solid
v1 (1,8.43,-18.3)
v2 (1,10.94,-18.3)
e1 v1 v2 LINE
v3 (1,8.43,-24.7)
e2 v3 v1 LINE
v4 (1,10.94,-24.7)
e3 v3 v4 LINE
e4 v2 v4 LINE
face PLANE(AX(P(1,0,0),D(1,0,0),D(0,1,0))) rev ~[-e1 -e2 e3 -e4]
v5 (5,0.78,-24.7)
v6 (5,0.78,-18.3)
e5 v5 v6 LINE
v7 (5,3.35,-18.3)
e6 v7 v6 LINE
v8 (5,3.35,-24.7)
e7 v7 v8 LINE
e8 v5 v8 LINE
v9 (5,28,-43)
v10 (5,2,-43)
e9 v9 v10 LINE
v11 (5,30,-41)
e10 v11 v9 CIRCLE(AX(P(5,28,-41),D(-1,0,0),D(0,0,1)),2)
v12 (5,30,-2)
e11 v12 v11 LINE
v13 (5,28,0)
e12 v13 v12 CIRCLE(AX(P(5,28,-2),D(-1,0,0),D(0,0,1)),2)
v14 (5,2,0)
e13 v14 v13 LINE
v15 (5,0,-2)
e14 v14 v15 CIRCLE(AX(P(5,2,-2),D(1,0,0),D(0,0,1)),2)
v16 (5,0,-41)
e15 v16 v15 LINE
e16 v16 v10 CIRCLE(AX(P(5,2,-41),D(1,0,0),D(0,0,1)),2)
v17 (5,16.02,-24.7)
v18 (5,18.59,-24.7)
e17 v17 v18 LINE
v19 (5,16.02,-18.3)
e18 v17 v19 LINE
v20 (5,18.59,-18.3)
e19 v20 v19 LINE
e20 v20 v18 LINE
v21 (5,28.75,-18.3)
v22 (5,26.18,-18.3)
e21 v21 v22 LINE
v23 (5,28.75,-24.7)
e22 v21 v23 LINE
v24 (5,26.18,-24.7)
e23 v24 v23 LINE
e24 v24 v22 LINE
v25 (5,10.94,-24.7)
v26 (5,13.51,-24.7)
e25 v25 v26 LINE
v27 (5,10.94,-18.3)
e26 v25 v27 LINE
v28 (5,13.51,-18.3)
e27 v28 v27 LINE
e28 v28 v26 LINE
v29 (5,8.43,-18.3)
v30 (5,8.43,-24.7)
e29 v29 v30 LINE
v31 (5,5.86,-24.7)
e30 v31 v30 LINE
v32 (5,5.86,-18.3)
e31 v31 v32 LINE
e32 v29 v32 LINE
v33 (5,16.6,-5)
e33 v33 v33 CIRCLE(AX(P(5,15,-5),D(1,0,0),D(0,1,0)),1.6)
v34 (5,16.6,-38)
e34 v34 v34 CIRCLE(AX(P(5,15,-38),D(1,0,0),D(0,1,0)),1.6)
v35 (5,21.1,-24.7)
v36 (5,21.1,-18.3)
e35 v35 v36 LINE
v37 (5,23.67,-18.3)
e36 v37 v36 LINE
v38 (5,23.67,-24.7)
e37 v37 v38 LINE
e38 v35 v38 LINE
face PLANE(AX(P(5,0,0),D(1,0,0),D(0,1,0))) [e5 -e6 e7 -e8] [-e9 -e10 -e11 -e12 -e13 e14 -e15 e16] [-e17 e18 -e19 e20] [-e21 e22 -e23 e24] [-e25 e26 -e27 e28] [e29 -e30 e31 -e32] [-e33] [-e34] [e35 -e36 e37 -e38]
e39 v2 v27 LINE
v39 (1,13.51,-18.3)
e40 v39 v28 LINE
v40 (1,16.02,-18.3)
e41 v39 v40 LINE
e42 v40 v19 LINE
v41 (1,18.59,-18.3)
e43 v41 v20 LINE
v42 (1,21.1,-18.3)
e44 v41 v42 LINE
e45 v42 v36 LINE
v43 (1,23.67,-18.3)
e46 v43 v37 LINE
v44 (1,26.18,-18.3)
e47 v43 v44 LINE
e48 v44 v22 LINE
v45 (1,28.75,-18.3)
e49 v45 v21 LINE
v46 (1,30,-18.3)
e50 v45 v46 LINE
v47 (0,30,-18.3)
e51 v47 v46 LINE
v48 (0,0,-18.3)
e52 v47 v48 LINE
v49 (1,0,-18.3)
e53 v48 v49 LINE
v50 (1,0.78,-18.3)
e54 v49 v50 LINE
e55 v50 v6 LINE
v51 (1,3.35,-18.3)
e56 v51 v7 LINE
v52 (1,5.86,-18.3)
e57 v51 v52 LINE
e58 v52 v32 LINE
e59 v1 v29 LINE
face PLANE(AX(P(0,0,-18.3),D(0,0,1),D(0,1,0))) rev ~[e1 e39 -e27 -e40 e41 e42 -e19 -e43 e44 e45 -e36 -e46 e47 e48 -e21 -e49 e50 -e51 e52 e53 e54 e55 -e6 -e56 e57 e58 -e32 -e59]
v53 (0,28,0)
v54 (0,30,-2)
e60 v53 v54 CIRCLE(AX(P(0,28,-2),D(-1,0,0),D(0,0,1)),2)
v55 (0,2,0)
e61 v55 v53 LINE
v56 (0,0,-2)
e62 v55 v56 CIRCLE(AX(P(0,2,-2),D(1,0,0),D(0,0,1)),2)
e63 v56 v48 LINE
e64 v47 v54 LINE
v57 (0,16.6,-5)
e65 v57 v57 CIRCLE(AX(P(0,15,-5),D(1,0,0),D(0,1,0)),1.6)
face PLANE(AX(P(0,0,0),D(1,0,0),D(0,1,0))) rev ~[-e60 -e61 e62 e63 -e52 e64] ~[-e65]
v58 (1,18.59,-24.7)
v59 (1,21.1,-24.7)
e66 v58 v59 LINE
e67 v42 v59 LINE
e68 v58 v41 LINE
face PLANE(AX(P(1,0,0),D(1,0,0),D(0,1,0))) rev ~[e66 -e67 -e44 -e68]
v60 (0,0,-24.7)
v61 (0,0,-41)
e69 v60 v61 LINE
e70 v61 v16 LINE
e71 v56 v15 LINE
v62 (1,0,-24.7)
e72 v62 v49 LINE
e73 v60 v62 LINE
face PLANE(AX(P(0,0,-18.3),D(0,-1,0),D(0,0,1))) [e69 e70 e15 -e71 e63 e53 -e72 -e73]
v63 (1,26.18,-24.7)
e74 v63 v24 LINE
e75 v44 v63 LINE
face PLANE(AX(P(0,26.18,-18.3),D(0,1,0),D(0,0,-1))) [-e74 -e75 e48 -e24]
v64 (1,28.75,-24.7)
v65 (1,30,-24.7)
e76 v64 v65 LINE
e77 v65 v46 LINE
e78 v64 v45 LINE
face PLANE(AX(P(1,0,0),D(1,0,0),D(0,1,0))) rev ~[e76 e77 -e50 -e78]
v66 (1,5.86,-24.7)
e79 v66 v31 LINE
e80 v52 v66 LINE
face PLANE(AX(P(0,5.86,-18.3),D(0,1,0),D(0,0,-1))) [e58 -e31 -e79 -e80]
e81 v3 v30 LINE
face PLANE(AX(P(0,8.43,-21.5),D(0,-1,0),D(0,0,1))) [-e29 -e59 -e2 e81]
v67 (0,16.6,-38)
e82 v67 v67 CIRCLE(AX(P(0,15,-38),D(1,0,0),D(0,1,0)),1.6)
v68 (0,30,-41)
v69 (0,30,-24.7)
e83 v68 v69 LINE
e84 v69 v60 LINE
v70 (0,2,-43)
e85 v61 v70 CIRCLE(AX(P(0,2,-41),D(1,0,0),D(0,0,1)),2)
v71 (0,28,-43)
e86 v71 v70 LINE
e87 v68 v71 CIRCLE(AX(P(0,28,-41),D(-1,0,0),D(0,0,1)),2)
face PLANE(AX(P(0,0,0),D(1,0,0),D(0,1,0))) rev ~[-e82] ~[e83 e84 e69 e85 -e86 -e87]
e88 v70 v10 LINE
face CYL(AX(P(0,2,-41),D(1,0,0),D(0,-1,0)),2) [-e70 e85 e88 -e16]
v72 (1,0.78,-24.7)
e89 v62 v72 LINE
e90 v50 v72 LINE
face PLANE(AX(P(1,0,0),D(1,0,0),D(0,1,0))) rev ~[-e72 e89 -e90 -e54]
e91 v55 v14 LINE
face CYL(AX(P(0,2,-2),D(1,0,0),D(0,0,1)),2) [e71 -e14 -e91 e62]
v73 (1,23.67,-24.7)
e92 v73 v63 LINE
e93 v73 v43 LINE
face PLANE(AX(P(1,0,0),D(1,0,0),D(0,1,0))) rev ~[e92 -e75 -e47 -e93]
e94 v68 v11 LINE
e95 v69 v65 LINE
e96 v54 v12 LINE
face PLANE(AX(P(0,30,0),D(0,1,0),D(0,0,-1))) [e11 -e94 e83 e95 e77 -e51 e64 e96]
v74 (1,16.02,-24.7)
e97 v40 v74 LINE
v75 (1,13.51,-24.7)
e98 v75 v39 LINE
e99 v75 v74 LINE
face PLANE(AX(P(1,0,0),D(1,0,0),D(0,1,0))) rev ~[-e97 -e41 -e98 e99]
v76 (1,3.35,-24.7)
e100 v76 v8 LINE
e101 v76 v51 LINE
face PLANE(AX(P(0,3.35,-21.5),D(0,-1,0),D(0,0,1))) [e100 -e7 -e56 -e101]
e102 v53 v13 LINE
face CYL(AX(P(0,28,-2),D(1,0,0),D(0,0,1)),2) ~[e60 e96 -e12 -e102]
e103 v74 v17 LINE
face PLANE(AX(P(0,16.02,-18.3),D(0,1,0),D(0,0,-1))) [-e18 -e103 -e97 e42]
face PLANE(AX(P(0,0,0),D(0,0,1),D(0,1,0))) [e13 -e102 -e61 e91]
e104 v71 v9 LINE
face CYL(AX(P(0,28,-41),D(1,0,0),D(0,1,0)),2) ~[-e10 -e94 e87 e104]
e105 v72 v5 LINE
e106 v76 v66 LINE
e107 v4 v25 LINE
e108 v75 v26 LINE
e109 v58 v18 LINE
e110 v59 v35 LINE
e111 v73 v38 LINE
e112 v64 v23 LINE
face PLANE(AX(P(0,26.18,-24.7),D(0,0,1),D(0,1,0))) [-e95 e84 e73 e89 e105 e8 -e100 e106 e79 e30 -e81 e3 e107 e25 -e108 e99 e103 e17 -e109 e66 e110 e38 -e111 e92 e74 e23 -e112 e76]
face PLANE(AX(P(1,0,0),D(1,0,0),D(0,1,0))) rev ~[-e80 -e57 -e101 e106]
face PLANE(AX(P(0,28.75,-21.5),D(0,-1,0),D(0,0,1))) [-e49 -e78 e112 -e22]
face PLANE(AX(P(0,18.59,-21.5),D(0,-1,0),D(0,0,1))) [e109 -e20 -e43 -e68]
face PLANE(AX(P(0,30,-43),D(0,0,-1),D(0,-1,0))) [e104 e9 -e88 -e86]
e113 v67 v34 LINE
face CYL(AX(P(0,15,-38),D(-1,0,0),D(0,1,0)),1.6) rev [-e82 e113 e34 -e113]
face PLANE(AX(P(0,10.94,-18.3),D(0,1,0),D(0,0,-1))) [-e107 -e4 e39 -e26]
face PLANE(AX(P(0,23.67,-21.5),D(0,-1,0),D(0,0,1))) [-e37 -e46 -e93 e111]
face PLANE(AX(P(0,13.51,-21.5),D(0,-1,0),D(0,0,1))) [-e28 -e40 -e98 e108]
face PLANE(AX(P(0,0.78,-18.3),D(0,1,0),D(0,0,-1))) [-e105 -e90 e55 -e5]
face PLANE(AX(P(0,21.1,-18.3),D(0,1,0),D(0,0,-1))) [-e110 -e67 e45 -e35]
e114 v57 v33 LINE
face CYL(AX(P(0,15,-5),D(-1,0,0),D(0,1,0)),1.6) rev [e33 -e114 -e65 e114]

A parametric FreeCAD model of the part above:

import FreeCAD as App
import Part
import Sketcher

V = App.Vector
Q = App.Units.Quantity


def edges_at(feature, points):
    """Names of the edges that pass closest to the given points."""
    edges = feature.Shape.Edges
    near = lambda p: min(range(len(edges)), key=lambda i: edges[i].distToShape(Part.Vertex(*p))[0])
    return sorted({f"Edge{near(p) + 1}" for p in points})


def add_polygon(sketch, points):
    """Adds a closed chain of lines whose ends are joined by coincident constraints."""
    first, n = sketch.GeometryCount, len(points)
    for a, b in zip(points, points[1:] + points[:1]):
        sketch.addGeometry(Part.LineSegment(App.Vector(*a, 0), App.Vector(*b, 0)), False)
    for i in range(n):
        sketch.addConstraint(Sketcher.Constraint("Coincident", first + i, 2, first + (i + 1) % n, 1))

doc = App.newDocument("Part")
body = doc.addObject("PartDesign::Body", "Body")

sketch1 = body.newObject("Sketcher::SketchObject", "Sketch")
sketch1.AttachmentSupport = (doc.getObject("YZ_Plane"), [""])
sketch1.MapMode = "FlatFace"
add_polygon(sketch1, [(30, 0), (0, 0), (0, -43), (30, -43)])
add_polygon(sketch1, [(26.2, -18.3), (28.8, -18.3), (28.8, -24.7), (26.2, -24.7)])
add_polygon(sketch1, [(21.1, -18.3), (23.7, -18.3), (23.7, -24.7), (21.1, -24.7)])
add_polygon(sketch1, [(16, -18.3), (18.6, -18.3), (18.6, -24.7), (16, -24.7)])
add_polygon(sketch1, [(10.9, -18.3), (13.5, -18.3), (13.5, -24.7), (10.9, -24.7)])
add_polygon(sketch1, [(5.9, -18.3), (8.4, -18.3), (8.4, -24.7), (5.9, -24.7)])
add_polygon(sketch1, [(0.8, -18.3), (3.4, -18.3), (3.4, -24.7), (0.8, -24.7)])
sketch1.addGeometry(Part.Circle(V(15, -5, 0), V(0, 0, 1), 1.6), False)
sketch1.addGeometry(Part.Circle(V(15, -38, 0), V(0, 0, 1), 1.6), False)
sketch1.addConstraint(Sketcher.Constraint("Horizontal", 0))
sketch1.addConstraint(Sketcher.Constraint("Vertical", 1))
sketch1.addConstraint(Sketcher.Constraint("Horizontal", 2))
sketch1.addConstraint(Sketcher.Constraint("Vertical", 3))
sketch1.addConstraint(Sketcher.Constraint("Horizontal", 4))
sketch1.addConstraint(Sketcher.Constraint("Vertical", 5))
sketch1.addConstraint(Sketcher.Constraint("Horizontal", 6))
sketch1.addConstraint(Sketcher.Constraint("Vertical", 7))
sketch1.addConstraint(Sketcher.Constraint("Horizontal", 8))
sketch1.addConstraint(Sketcher.Constraint("Vertical", 9))
sketch1.addConstraint(Sketcher.Constraint("Horizontal", 10))
sketch1.addConstraint(Sketcher.Constraint("Vertical", 11))
sketch1.addConstraint(Sketcher.Constraint("Horizontal", 12))
sketch1.addConstraint(Sketcher.Constraint("Vertical", 13))
sketch1.addConstraint(Sketcher.Constraint("Horizontal", 14))
sketch1.addConstraint(Sketcher.Constraint("Vertical", 15))
sketch1.addConstraint(Sketcher.Constraint("Horizontal", 16))
sketch1.addConstraint(Sketcher.Constraint("Vertical", 17))
sketch1.addConstraint(Sketcher.Constraint("Horizontal", 18))
sketch1.addConstraint(Sketcher.Constraint("Vertical", 19))
sketch1.addConstraint(Sketcher.Constraint("Horizontal", 20))
sketch1.addConstraint(Sketcher.Constraint("Vertical", 21))
sketch1.addConstraint(Sketcher.Constraint("Horizontal", 22))
sketch1.addConstraint(Sketcher.Constraint("Vertical", 23))
sketch1.addConstraint(Sketcher.Constraint("Horizontal", 24))
sketch1.addConstraint(Sketcher.Constraint("Vertical", 25))
sketch1.addConstraint(Sketcher.Constraint("Horizontal", 26))
sketch1.addConstraint(Sketcher.Constraint("Vertical", 27))
sketch1.addConstraint(Sketcher.Constraint("Coincident", 0, 2, -1, 1))
sketch1.addConstraint(Sketcher.Constraint("Equal", 28, 29))
sketch1.addConstraint(Sketcher.Constraint("Horizontal", 7, 2, 8, 2))
sketch1.addConstraint(Sketcher.Constraint("Horizontal", 6, 2, 9, 2))
sketch1.addConstraint(Sketcher.Constraint("Horizontal", 11, 2, 12, 2))
sketch1.addConstraint(Sketcher.Constraint("Horizontal", 10, 2, 13, 2))
sketch1.addConstraint(Sketcher.Constraint("Horizontal", 15, 2, 16, 2))
sketch1.addConstraint(Sketcher.Constraint("Horizontal", 14, 2, 17, 2))
sketch1.addConstraint(Sketcher.Constraint("Horizontal", 19, 2, 20, 2))
sketch1.addConstraint(Sketcher.Constraint("Horizontal", 18, 2, 21, 2))
sketch1.addConstraint(Sketcher.Constraint("Horizontal", 23, 2, 24, 2))
sketch1.addConstraint(Sketcher.Constraint("Horizontal", 22, 2, 25, 2))
sketch1.addConstraint(Sketcher.Constraint("Vertical", 28, 3, 29, 3))
sketch1.addConstraint(Sketcher.Constraint("Equal", 6, 8))
sketch1.addConstraint(Sketcher.Constraint("Equal", 10, 12))
sketch1.addConstraint(Sketcher.Constraint("Equal", 14, 16))
sketch1.addConstraint(Sketcher.Constraint("Equal", 18, 20))
sketch1.addConstraint(Sketcher.Constraint("Equal", 22, 24))
sketch1.addConstraint(Sketcher.Constraint("Diameter", 28, Q("3.2 mm")))
sketch1.addConstraint(Sketcher.Constraint("DistanceX", 0, 2, 0, 1, Q("30 mm")))
sketch1.addConstraint(Sketcher.Constraint("DistanceY", 1, 2, 1, 1, Q("43 mm")))
sketch1.addConstraint(Sketcher.Constraint("DistanceY", 5, 2, 5, 1, Q("6.4 mm")))
sketch1.addConstraint(Sketcher.Constraint("DistanceX", -1, 1, 28, 3, Q("15 mm")))
sketch1.addConstraint(Sketcher.Constraint("DistanceY", 28, 3, -1, 1, Q("5 mm")))
sketch1.addConstraint(Sketcher.Constraint("DistanceY", 1, 2, 29, 3, Q("5 mm")))
sketch1.addConstraint(Sketcher.Constraint("DistanceX", 4, 1, 4, 2, Q("2.57 mm")))
sketch1.addConstraint(Sketcher.Constraint("DistanceX", 4, 2, 3, 2, Q("1.25 mm")))
sketch1.addConstraint(Sketcher.Constraint("DistanceX", 8, 2, 4, 2, Q("5.08 mm")))
sketch1.addConstraint(Sketcher.Constraint("DistanceX", 12, 2, 8, 2, Q("5.08 mm")))
sketch1.addConstraint(Sketcher.Constraint("DistanceX", 16, 2, 12, 2, Q("5.08 mm")))
sketch1.addConstraint(Sketcher.Constraint("DistanceX", 20, 2, 16, 2, Q("5.08 mm")))
sketch1.addConstraint(Sketcher.Constraint("DistanceX", 24, 2, 20, 2, Q("5.08 mm")))
sketch1.addConstraint(Sketcher.Constraint("DistanceY", 4, 2, -1, 1, Q("18.3 mm")))
pad1 = body.newObject("PartDesign::Pad", "Pad")
pad1.Profile = sketch1
pad1.Length = 5
doc.recompute()

fillet = body.newObject("PartDesign::Fillet", "Fillet")
fillet.Base = (pad1, edges_at(pad1, [
    (2.5, 30, 0),
    (2.5, 0, 0),
    (2.5, 0, -43),
    (2.5, 30, -43),
]))
fillet.Radius = 2

sketch2 = body.newObject("Sketcher::SketchObject", "Sketch001")
sketch2.AttachmentSupport = (doc.getObject("YZ_Plane"), [""])
sketch2.MapMode = "FlatFace"
add_polygon(sketch2, [(0, -18), (0, -25), (30, -25), (30, -18)])
sketch2.addConstraint(Sketcher.Constraint("Vertical", 0))
sketch2.addConstraint(Sketcher.Constraint("Horizontal", 1))
sketch2.addConstraint(Sketcher.Constraint("Vertical", 2))
sketch2.addConstraint(Sketcher.Constraint("Horizontal", 3))
sketch2.addConstraint(Sketcher.Constraint("PointOnObject", 0, 2, -2))
sketch2.addConstraint(Sketcher.Constraint("DistanceX", 1, 1, 1, 2, Q("30 mm")))
sketch2.addConstraint(Sketcher.Constraint("DistanceY", 0, 2, 0, 1, Q("6.4 mm")))
sketch2.addConstraint(Sketcher.Constraint("DistanceY", 0, 2, -1, 1, Q("24.7 mm")))
pocket1 = body.newObject("PartDesign::Pocket", "Pocket")
pocket1.Profile = sketch2
pocket1.Length = 1
pocket1.Reversed = True

doc.recompute()
